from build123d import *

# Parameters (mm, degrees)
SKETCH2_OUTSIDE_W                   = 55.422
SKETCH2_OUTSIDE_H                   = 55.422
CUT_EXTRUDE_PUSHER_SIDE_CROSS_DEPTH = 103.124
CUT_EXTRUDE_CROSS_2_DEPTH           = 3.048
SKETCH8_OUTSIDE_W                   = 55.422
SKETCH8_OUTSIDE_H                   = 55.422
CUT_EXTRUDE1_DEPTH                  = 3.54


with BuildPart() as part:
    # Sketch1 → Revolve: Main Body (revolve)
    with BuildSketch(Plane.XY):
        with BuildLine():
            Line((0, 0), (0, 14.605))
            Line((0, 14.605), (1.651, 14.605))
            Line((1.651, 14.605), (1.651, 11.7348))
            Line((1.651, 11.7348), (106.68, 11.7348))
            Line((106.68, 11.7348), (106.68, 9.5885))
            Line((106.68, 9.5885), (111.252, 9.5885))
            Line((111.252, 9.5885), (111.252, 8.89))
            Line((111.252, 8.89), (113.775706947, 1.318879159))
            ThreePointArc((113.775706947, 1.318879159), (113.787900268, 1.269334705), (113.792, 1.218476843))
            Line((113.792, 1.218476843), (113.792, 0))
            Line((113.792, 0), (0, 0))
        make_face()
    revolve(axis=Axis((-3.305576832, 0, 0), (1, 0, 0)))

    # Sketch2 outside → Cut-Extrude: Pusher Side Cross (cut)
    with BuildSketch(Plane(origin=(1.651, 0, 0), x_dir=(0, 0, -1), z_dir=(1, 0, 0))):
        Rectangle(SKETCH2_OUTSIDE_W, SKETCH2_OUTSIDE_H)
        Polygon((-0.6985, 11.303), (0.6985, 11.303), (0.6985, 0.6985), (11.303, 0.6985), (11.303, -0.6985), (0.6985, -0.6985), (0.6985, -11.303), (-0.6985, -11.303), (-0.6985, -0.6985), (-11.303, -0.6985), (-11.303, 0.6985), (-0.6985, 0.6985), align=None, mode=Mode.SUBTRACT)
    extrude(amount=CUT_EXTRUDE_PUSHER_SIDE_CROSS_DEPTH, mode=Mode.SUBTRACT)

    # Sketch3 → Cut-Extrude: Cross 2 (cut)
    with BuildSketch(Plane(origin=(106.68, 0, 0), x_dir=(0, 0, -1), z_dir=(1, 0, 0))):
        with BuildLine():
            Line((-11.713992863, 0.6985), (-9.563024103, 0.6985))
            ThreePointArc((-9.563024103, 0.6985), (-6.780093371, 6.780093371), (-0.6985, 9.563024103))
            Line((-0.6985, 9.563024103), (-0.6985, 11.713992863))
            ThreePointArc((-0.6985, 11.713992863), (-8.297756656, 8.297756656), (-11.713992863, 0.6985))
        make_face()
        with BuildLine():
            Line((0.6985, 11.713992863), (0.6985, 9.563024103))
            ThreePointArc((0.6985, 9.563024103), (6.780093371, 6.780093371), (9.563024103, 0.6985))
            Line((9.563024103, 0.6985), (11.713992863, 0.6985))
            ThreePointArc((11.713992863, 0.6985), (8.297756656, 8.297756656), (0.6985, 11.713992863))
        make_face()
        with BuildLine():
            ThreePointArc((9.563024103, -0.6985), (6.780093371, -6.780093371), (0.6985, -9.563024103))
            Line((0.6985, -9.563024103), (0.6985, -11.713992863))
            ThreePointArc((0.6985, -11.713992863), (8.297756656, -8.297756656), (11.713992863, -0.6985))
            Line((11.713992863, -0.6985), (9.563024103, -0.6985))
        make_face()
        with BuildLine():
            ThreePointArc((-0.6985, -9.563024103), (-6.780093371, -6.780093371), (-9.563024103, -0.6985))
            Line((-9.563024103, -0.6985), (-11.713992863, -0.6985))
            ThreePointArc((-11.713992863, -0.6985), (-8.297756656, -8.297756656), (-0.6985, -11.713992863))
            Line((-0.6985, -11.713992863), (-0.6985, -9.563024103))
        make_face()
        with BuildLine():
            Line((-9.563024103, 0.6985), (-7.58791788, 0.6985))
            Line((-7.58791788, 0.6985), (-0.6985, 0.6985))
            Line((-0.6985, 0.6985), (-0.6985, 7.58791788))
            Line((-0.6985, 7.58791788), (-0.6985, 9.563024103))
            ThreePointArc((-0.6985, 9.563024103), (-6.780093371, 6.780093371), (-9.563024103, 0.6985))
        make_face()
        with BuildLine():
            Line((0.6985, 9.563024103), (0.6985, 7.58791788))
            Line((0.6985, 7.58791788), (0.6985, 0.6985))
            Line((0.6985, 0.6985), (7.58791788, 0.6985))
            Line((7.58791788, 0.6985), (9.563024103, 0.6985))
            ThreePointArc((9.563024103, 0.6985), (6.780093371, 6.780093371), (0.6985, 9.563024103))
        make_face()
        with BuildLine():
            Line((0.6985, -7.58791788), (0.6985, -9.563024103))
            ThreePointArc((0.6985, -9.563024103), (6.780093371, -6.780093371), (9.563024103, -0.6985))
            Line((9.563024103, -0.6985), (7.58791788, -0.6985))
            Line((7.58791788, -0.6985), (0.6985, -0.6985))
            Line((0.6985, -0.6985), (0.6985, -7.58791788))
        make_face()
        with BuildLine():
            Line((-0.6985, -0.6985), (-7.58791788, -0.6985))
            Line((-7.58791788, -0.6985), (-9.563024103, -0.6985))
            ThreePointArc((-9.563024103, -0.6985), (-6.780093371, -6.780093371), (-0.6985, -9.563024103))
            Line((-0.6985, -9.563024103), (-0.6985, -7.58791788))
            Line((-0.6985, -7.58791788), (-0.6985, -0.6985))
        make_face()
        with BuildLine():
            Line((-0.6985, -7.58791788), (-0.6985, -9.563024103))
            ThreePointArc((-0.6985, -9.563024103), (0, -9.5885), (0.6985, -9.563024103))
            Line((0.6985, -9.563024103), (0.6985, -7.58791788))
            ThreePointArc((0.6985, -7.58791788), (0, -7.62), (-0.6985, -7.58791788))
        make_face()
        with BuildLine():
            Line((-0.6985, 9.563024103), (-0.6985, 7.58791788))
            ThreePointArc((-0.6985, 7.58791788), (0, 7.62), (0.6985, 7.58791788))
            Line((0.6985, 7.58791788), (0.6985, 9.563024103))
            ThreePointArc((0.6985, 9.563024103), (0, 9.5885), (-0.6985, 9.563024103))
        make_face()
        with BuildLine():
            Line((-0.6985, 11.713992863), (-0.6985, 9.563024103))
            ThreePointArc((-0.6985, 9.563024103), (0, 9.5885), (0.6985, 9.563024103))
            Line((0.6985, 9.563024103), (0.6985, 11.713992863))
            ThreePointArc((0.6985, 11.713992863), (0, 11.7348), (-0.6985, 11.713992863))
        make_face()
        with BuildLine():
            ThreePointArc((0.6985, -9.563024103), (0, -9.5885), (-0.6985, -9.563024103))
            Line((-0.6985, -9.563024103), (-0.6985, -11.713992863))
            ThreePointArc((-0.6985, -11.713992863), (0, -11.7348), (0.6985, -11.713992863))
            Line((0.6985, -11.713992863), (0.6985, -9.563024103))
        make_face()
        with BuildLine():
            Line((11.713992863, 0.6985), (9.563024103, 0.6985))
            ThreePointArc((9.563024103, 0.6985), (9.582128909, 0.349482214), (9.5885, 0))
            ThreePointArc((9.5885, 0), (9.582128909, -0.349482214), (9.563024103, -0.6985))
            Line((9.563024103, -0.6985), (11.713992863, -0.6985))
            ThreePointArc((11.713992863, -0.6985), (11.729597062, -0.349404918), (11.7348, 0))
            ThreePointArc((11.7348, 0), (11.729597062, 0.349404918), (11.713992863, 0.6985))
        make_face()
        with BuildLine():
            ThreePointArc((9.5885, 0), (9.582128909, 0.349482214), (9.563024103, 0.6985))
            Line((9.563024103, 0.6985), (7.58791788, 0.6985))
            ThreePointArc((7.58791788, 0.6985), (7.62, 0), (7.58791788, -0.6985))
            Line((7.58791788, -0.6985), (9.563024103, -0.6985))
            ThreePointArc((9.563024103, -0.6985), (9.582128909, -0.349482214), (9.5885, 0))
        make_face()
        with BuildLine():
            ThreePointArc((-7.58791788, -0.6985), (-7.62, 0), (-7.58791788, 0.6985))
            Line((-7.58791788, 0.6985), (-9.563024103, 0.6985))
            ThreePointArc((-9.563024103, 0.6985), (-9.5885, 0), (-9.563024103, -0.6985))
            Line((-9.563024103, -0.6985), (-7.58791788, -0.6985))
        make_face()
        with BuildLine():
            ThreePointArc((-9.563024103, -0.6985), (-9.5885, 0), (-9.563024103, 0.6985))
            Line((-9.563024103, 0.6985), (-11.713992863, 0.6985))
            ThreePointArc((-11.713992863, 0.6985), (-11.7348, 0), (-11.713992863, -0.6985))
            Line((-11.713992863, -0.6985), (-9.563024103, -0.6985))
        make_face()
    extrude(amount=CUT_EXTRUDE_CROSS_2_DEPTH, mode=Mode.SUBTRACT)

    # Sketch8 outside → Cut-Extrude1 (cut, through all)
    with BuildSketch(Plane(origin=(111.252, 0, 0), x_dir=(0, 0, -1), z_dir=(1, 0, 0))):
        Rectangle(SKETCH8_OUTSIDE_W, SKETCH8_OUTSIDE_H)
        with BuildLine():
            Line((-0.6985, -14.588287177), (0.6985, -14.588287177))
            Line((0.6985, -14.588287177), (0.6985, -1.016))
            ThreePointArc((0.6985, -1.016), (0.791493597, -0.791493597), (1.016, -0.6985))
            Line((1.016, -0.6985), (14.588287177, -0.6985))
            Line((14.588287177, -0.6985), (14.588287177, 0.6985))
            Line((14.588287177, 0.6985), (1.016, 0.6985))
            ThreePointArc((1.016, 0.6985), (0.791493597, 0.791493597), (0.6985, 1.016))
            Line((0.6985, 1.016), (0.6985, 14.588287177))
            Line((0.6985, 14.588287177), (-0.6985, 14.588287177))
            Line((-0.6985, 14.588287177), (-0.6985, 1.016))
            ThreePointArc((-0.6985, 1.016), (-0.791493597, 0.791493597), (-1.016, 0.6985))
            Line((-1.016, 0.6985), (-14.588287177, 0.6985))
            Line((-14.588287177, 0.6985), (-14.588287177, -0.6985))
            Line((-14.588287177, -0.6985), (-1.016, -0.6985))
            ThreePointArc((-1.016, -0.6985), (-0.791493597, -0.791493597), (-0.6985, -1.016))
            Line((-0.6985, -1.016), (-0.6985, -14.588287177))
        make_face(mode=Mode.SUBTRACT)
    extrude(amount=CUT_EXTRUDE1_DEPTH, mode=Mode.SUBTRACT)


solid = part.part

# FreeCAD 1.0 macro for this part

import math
import FreeCAD as App
import Part
import Sketcher
Q = App.Units.Quantity


def add_polygon(sketch, points):
    """Adds a closed chain of lines whose ends are joined by coincident constraints."""
    first, n = sketch.GeometryCount, len(points)
    for a, b in zip(points, points[1:] + points[:1]):
        sketch.addGeometry(Part.LineSegment(App.Vector(*a, 0), App.Vector(*b, 0)), False)
    for i in range(n):
        sketch.addConstraint(Sketcher.Constraint("Coincident", first + i, 2, first + (i + 1) % n, 1))

doc = App.newDocument("Part")
body = doc.addObject("PartDesign::Body", "Body")

# Sketch on XY plane
sketch1 = doc.addObject("Sketcher::SketchObject", "Sketch")
body.addObject(sketch1)
sketch1.AttachmentSupport = (doc.XY_Plane, [""])
sketch1.MapMode = "FlatFace"
sketch1.addGeometry([
    Part.LineSegment(App.Vector(0, 14.61, 0), App.Vector(0, 0, 0)),  # 0
    Part.LineSegment(App.Vector(0, 0, 0), App.Vector(113.79, 0, 0)),  # 1
    Part.LineSegment(App.Vector(113.79, 0, 0), App.Vector(113.79, 1.22, 0)),  # 2
    Part.ArcOfCircle(Part.Circle(App.Vector(113.47, 1.22, 0), App.Vector(0, 0, 1), 0.32), math.radians(0), math.radians(18.43)),  # 3
    Part.LineSegment(App.Vector(113.78, 1.32, 0), App.Vector(111.25, 8.89, 0)),  # 4
    Part.LineSegment(App.Vector(111.25, 8.89, 0), App.Vector(111.25, 9.59, 0)),  # 5
    Part.LineSegment(App.Vector(111.25, 9.59, 0), App.Vector(106.68, 9.59, 0)),  # 6
    Part.LineSegment(App.Vector(106.68, 9.59, 0), App.Vector(106.68, 11.73, 0)),  # 7
    Part.LineSegment(App.Vector(106.68, 11.73, 0), App.Vector(1.65, 11.73, 0)),  # 8
    Part.LineSegment(App.Vector(1.65, 11.73, 0), App.Vector(1.65, 14.61, 0)),  # 9
    Part.LineSegment(App.Vector(1.65, 14.61, 0), App.Vector(0, 14.61, 0)),  # 10
], False)
sketch1.addConstraint([
    Sketcher.Constraint("Coincident", 0, 2, 1, 1),
    Sketcher.Constraint("Coincident", 1, 2, 2, 1),
    Sketcher.Constraint("Tangent", 2, 2, 3, 1),
    Sketcher.Constraint("Tangent", 3, 2, 4, 1),
    Sketcher.Constraint("Coincident", 4, 2, 5, 1),
    Sketcher.Constraint("Coincident", 5, 2, 6, 1),
    Sketcher.Constraint("Coincident", 6, 2, 7, 1),
    Sketcher.Constraint("Coincident", 7, 2, 8, 1),
    Sketcher.Constraint("Coincident", 8, 2, 9, 1),
    Sketcher.Constraint("Coincident", 9, 2, 10, 1),
    Sketcher.Constraint("Coincident", 10, 2, 0, 1),
    Sketcher.Constraint("Vertical", 0),
    Sketcher.Constraint("Horizontal", 1),
    Sketcher.Constraint("Vertical", 2),
    Sketcher.Constraint("Vertical", 5),
    Sketcher.Constraint("Horizontal", 6),
    Sketcher.Constraint("Vertical", 7),
    Sketcher.Constraint("Horizontal", 8),
    Sketcher.Constraint("Vertical", 9),
    Sketcher.Constraint("Horizontal", 10),
    Sketcher.Constraint("Coincident", 0, 2, -1, 1),
    Sketcher.Constraint("DistanceX", 1, 1, 1, 2, Q("4.48 in")),
    Sketcher.Constraint("DistanceX", 6, 2, 6, 1, Q("0.18 in")),
    Sketcher.Constraint("DistanceX", -1, 1, 6, 2, Q("4.2 in")),
    Sketcher.Constraint("Radius", 3, Q("0.0125 in")),
    Sketcher.Constraint("DistanceX", 8, 2, 8, 1, Q("4.135 in")),
    Sketcher.Constraint("DistanceY", 0, 2, 0, 1, Q("0.575 in")),
    Sketcher.Constraint("DistanceY", 9, 1, 9, 2, Q("0.113 in")),
    Sketcher.Constraint("DistanceY", -1, 1, 4, 2, Q("0.35 in")),
    Sketcher.Constraint("DistanceY", 5, 1, 5, 2, Q("0.0275 in")),
    Sketcher.Constraint("DistanceY", 2, 1, 2, 2, 1.218477),
])
revolution = doc.addObject("PartDesign::Revolution", "Revolution")
body.addObject(revolution)
revolution.Profile = sketch1
revolution.ReferenceAxis = (sketch1, ["H_Axis"])
revolution.Angle = 360

# Sketch on YZ plane
sketch2 = doc.addObject("Sketcher::SketchObject", "Sketch001")
body.addObject(sketch2)
sketch2.AttachmentSupport = (doc.YZ_Plane, [""])
sketch2.MapMode = "FlatFace"
sketch2.AttachmentOffset = App.Placement(App.Vector(0, 0, 0.065 * 25.4), App.Rotation())
add_polygon(sketch2, [(27.7, 27.7), (-27.7, 27.7), (-27.7, -27.7), (27.7, -27.7)])  # lines 0-3
add_polygon(sketch2, [(0.7, 0.7), (11.3, 0.7), (11.3, -0.7), (0.7, -0.7), (0.7, -11.3), (-0.7, -11.3), (-0.7, -0.7), (-11.3, -0.7), (-11.3, 0.7), (-0.7, 0.7), (-0.7, 11.3), (0.7, 11.3)])  # lines 4-15
sketch2.addConstraint([
    Sketcher.Constraint("Horizontal", 0),
    Sketcher.Constraint("Vertical", 1),
    Sketcher.Constraint("Horizontal", 2),
    Sketcher.Constraint("Vertical", 3),
    Sketcher.Constraint("Horizontal", 4),
    Sketcher.Constraint("Vertical", 5),
    Sketcher.Constraint("Horizontal", 6),
    Sketcher.Constraint("Vertical", 7),
    Sketcher.Constraint("Horizontal", 8),
    Sketcher.Constraint("Vertical", 9),
    Sketcher.Constraint("Horizontal", 10),
    Sketcher.Constraint("Vertical", 11),
    Sketcher.Constraint("Horizontal", 12),
    Sketcher.Constraint("Vertical", 13),
    Sketcher.Constraint("Horizontal", 14),
    Sketcher.Constraint("Vertical", 15),
    Sketcher.Constraint("Symmetric", 0, 2, 2, 2, -1, 1),
    Sketcher.Constraint("Symmetric", 4, 2, 10, 2, -1, 1),
    Sketcher.Constraint("Symmetric", 6, 2, 12, 2, -1, 1),
    Sketcher.Constraint("Symmetric", 8, 2, 14, 2, -1, 1),
    Sketcher.Constraint("Symmetric", 6, 2, 9, 2, -2),
    Sketcher.Constraint("Equal", 2, 1),
    Sketcher.Constraint("Equal", 14, 5),
    Sketcher.Constraint("Equal", 12, 7),
    Sketcher.Constraint("DistanceX", 8, 2, 8, 1, Q("0.055 in")),
    Sketcher.Constraint("DistanceX", 10, 2, 5, 2, Q("0.89 in")),
    Sketcher.Constraint("DistanceX", 0, 2, 0, 1, 55.422),
])
pocket1 = doc.addObject("PartDesign::Pocket", "Pocket")
body.addObject(pocket1)
pocket1.Profile = sketch2
pocket1.Length = Q("4.06 in")
pocket1.Reversed = True

# Sketch on YZ plane
sketch3 = doc.addObject("Sketcher::SketchObject", "Sketch002")
body.addObject(sketch3)
sketch3.AttachmentSupport = (doc.YZ_Plane, [""])
sketch3.MapMode = "FlatFace"
sketch3.AttachmentOffset = App.Placement(App.Vector(0, 0, 4.2 * 25.4), App.Rotation())
sketch3.addGeometry([
    Part.ArcOfCircle(Part.Circle(App.Vector(0, 0, 0), App.Vector(0, 0, 1), 11.7), math.radians(93), math.radians(177)),  # 0
    Part.ArcOfCircle(Part.Circle(App.Vector(0, 0, 0), App.Vector(0, 0, 1), 11.7), math.radians(176.59), math.radians(183.41)),  # 1
    Part.ArcOfCircle(Part.Circle(App.Vector(0, 0, 0), App.Vector(0, 0, 1), 11.7), math.radians(-177), math.radians(-93)),  # 2
    Part.ArcOfCircle(Part.Circle(App.Vector(0, 0, 0), App.Vector(0, 0, 1), 11.7), math.radians(-93.41), math.radians(-90)),  # 3
    Part.ArcOfCircle(Part.Circle(App.Vector(0, 0, 0), App.Vector(0, 0, 1), 11.7), math.radians(-90), math.radians(-86.59)),  # 4
    Part.ArcOfCircle(Part.Circle(App.Vector(0, 0, 0), App.Vector(0, 0, 1), 11.7), math.radians(-87), math.radians(-3)),  # 5
    Part.ArcOfCircle(Part.Circle(App.Vector(0, 0, 0), App.Vector(0, 0, 1), 11.7), math.radians(-3.41), math.radians(3.41)),  # 6
    Part.ArcOfCircle(Part.Circle(App.Vector(0, 0, 0), App.Vector(0, 0, 1), 11.7), math.radians(3), math.radians(87)),  # 7
    Part.ArcOfCircle(Part.Circle(App.Vector(0, 0, 0), App.Vector(0, 0, 1), 11.7), math.radians(86.59), math.radians(93.41)),  # 8
    Part.LineSegment(App.Vector(0.7, 7.6, 0), App.Vector(0.7, 0.7, 0)),  # 9
    Part.LineSegment(App.Vector(0.7, 0.7, 0), App.Vector(7.6, 0.7, 0)),  # 10
    Part.ArcOfCircle(Part.Circle(App.Vector(0, 0, 0), App.Vector(0, 0, 1), 7.6), math.radians(-5.26), math.radians(5.26)),  # 11
    Part.LineSegment(App.Vector(7.6, -0.7, 0), App.Vector(0.7, -0.7, 0)),  # 12
    Part.LineSegment(App.Vector(0.7, -0.7, 0), App.Vector(0.7, -7.6, 0)),  # 13
    Part.ArcOfCircle(Part.Circle(App.Vector(0, 0, 0), App.Vector(0, 0, 1), 7.6), math.radians(-95.26), math.radians(-84.74)),  # 14
    Part.LineSegment(App.Vector(-0.7, -7.6, 0), App.Vector(-0.7, -0.7, 0)),  # 15
    Part.LineSegment(App.Vector(-0.7, -0.7, 0), App.Vector(-7.6, -0.7, 0)),  # 16
    Part.ArcOfCircle(Part.Circle(App.Vector(0, 0, 0), App.Vector(0, 0, 1), 7.6), math.radians(174.74), math.radians(185.26)),  # 17
    Part.LineSegment(App.Vector(-7.6, 0.7, 0), App.Vector(-0.7, 0.7, 0)),  # 18
    Part.LineSegment(App.Vector(-0.7, 0.7, 0), App.Vector(-0.7, 7.6, 0)),  # 19
    Part.ArcOfCircle(Part.Circle(App.Vector(0, 0, 0), App.Vector(0, 0, 1), 7.6), math.radians(84.74), math.radians(95.26)),  # 20
], False)
sketch3.addConstraint([
    Sketcher.Constraint("Tangent", 0, 2, 1, 1),
    Sketcher.Constraint("Tangent", 1, 2, 2, 1),
    Sketcher.Constraint("Tangent", 2, 2, 3, 1),
    Sketcher.Constraint("Tangent", 3, 2, 4, 1),
    Sketcher.Constraint("Tangent", 4, 2, 5, 1),
    Sketcher.Constraint("Tangent", 5, 2, 6, 1),
    Sketcher.Constraint("Tangent", 6, 2, 7, 1),
    Sketcher.Constraint("Tangent", 7, 2, 8, 1),
    Sketcher.Constraint("Tangent", 8, 2, 0, 1),
    Sketcher.Constraint("Coincident", 9, 2, 10, 1),
    Sketcher.Constraint("Coincident", 10, 2, 11, 2),
    Sketcher.Constraint("Coincident", 11, 1, 12, 1),
    Sketcher.Constraint("Coincident", 12, 2, 13, 1),
    Sketcher.Constraint("Coincident", 13, 2, 14, 2),
    Sketcher.Constraint("Coincident", 14, 1, 15, 1),
    Sketcher.Constraint("Coincident", 15, 2, 16, 1),
    Sketcher.Constraint("Coincident", 16, 2, 17, 2),
    Sketcher.Constraint("Coincident", 17, 1, 18, 1),
    Sketcher.Constraint("Coincident", 18, 2, 19, 1),
    Sketcher.Constraint("Coincident", 19, 2, 20, 2),
    Sketcher.Constraint("Coincident", 20, 1, 9, 1),
    Sketcher.Constraint("Vertical", 9),
    Sketcher.Constraint("Horizontal", 10),
    Sketcher.Constraint("Horizontal", 12),
    Sketcher.Constraint("Vertical", 13),
    Sketcher.Constraint("Vertical", 15),
    Sketcher.Constraint("Horizontal", 16),
    Sketcher.Constraint("Horizontal", 18),
    Sketcher.Constraint("Vertical", 19),
    Sketcher.Constraint("Coincident", 0, 3, -1, 1),
    Sketcher.Constraint("Coincident", 2, 3, -1, 1),
    Sketcher.Constraint("Coincident", 4, 3, -1, 1),
    Sketcher.Constraint("Coincident", 6, 3, -1, 1),
    Sketcher.Constraint("Coincident", 11, 3, -1, 1),
    Sketcher.Constraint("Coincident", 14, 3, -1, 1),
    Sketcher.Constraint("Coincident", 17, 3, -1, 1),
    Sketcher.Constraint("Coincident", 20, 3, -1, 1),
    Sketcher.Constraint("Equal", 11, 14),
    Sketcher.Constraint("Equal", 14, 17),
    Sketcher.Constraint("Equal", 17, 20),
    Sketcher.Constraint("Symmetric", 9, 2, 15, 2, -1, 1),
    Sketcher.Constraint("Symmetric", 12, 2, 18, 2, -1, 1),
    Sketcher.Constraint("Symmetric", 12, 2, 15, 2, -2),
    Sketcher.Constraint("PointOnObject", 3, 2, -2),
    Sketcher.Constraint("Horizontal", 2, 2, 4, 2),
    Sketcher.Constraint("Horizontal", 1, 2, 5, 2),
    Sketcher.Constraint("Horizontal", 0, 2, 6, 2),
    Sketcher.Constraint("Horizontal", 7, 2, 8, 2),
    Sketcher.Constraint("Horizontal", 6, 2, 9, 2),
    Sketcher.Constraint("Horizontal", 5, 2, 11, 1),
    Sketcher.Constraint("Vertical", 4, 2, 7, 2),
    Sketcher.Constraint("Vertical", 7, 2, 9, 2),
    Sketcher.Constraint("Equal", 18, 9),
    Sketcher.Constraint("Radius", 11, Q("0.3 in")),
    Sketcher.Constraint("Radius", 0, Q("0.462 in")),
    Sketcher.Constraint("DistanceY", 1, 2, 0, 2, Q("0.055 in")),
])
pocket2 = doc.addObject("PartDesign::Pocket", "Pocket001")
body.addObject(pocket2)
pocket2.Profile = sketch3
pocket2.Length = Q("0.12 in")
pocket2.Reversed = True

# Sketch on YZ plane
sketch4 = doc.addObject("Sketcher::SketchObject", "Sketch003")
body.addObject(sketch4)
sketch4.AttachmentSupport = (doc.YZ_Plane, [""])
sketch4.MapMode = "FlatFace"
sketch4.AttachmentOffset = App.Placement(App.Vector(0, 0, 4.38 * 25.4), App.Rotation())
add_polygon(sketch4, [(27.71, 27.71), (-27.71, 27.71), (-27.71, -27.71), (27.71, -27.71)])  # lines 0-3
sketch4.addGeometry(Part.LineSegment(App.Vector(-14.59, -0.7, 0), App.Vector(-14.59, 0.7, 0)), False)  # 4
sketch4.addGeometry(Part.LineSegment(App.Vector(-14.59, 0.7, 0), App.Vector(-1.02, 0.7, 0)), False)  # 5
sketch4.addGeometry(Part.ArcOfCircle(Part.Circle(App.Vector(-1.02, 1.02, 0), App.Vector(0, 0, 1), 0.32), math.radians(-90), math.radians(0)), False)  # 6
sketch4.addGeometry(Part.LineSegment(App.Vector(-0.7, 1.02, 0), App.Vector(-0.7, 14.59, 0)), False)  # 7
sketch4.addGeometry(Part.LineSegment(App.Vector(-0.7, 14.59, 0), App.Vector(0.7, 14.59, 0)), False)  # 8
sketch4.addGeometry(Part.LineSegment(App.Vector(0.7, 14.59, 0), App.Vector(0.7, 1.02, 0)), False)  # 9
sketch4.addGeometry(Part.ArcOfCircle(Part.Circle(App.Vector(1.02, 1.02, 0), App.Vector(0, 0, 1), 0.32), math.radians(180), math.radians(270)), False)  # 10
sketch4.addGeometry(Part.LineSegment(App.Vector(1.02, 0.7, 0), App.Vector(14.59, 0.7, 0)), False)  # 11
sketch4.addGeometry(Part.LineSegment(App.Vector(14.59, 0.7, 0), App.Vector(14.59, -0.7, 0)), False)  # 12
sketch4.addGeometry(Part.LineSegment(App.Vector(14.59, -0.7, 0), App.Vector(1.02, -0.7, 0)), False)  # 13
sketch4.addGeometry(Part.ArcOfCircle(Part.Circle(App.Vector(1.02, -1.02, 0), App.Vector(0, 0, 1), 0.32), math.radians(90), math.radians(180)), False)  # 14
sketch4.addGeometry(Part.LineSegment(App.Vector(0.7, -1.02, 0), App.Vector(0.7, -14.59, 0)), False)  # 15
sketch4.addGeometry(Part.LineSegment(App.Vector(0.7, -14.59, 0), App.Vector(-0.7, -14.59, 0)), False)  # 16
sketch4.addGeometry(Part.LineSegment(App.Vector(-0.7, -14.59, 0), App.Vector(-0.7, -1.02, 0)), False)  # 17
sketch4.addGeometry(Part.ArcOfCircle(Part.Circle(App.Vector(-1.02, -1.02, 0), App.Vector(0, 0, 1), 0.32), math.radians(0), math.radians(90)), False)  # 18
sketch4.addGeometry(Part.LineSegment(App.Vector(-1.02, -0.7, 0), App.Vector(-14.59, -0.7, 0)), False)  # 19
sketch4.addConstraint([
    Sketcher.Constraint("Coincident", 4, 2, 5, 1),
    Sketcher.Constraint("Tangent", 5, 2, 6, 1),
    Sketcher.Constraint("Tangent", 6, 2, 7, 1),
    Sketcher.Constraint("Coincident", 7, 2, 8, 1),
    Sketcher.Constraint("Coincident", 8, 2, 9, 1),
    Sketcher.Constraint("Tangent", 9, 2, 10, 1),
    Sketcher.Constraint("Tangent", 10, 2, 11, 1),
    Sketcher.Constraint("Coincident", 11, 2, 12, 1),
    Sketcher.Constraint("Coincident", 12, 2, 13, 1),
    Sketcher.Constraint("Tangent", 13, 2, 14, 1),
    Sketcher.Constraint("Tangent", 14, 2, 15, 1),
    Sketcher.Constraint("Coincident", 15, 2, 16, 1),
    Sketcher.Constraint("Coincident", 16, 2, 17, 1),
    Sketcher.Constraint("Tangent", 17, 2, 18, 1),
    Sketcher.Constraint("Tangent", 18, 2, 19, 1),
    Sketcher.Constraint("Coincident", 19, 2, 4, 1),
    Sketcher.Constraint("Horizontal", 0),
    Sketcher.Constraint("Vertical", 1),
    Sketcher.Constraint("Horizontal", 2),
    Sketcher.Constraint("Vertical", 3),
    Sketcher.Constraint("Vertical", 4),
    Sketcher.Constraint("Horizontal", 5),
    Sketcher.Constraint("Vertical", 7),
    Sketcher.Constraint("Horizontal", 8),
    Sketcher.Constraint("Vertical", 9),
    Sketcher.Constraint("Horizontal", 11),
    Sketcher.Constraint("Vertical", 12),
    Sketcher.Constraint("Horizontal", 13),
    Sketcher.Constraint("Vertical", 15),
    Sketcher.Constraint("Horizontal", 16),
    Sketcher.Constraint("Vertical", 17),
    Sketcher.Constraint("Horizontal", 19),
    Sketcher.Constraint("Equal", 6, 10),
    Sketcher.Constraint("Equal", 10, 14),
    Sketcher.Constraint("Equal", 14, 18),
    Sketcher.Constraint("Symmetric", 6, 3, 14, 3, -1, 1),
    Sketcher.Constraint("Symmetric", 10, 3, 18, 3, -1, 1),
    Sketcher.Constraint("Symmetric", 0, 2, 2, 2, -1, 1),
    Sketcher.Constraint("Symmetric", 6, 3, 10, 3, -2),
    Sketcher.Constraint("Equal", 5, 11),
    Sketcher.Constraint("Equal", 2, 1),
    Sketcher.Constraint("Equal", 16, 4),
    Sketcher.Constraint("Equal", 19, 7),
    Sketcher.Constraint("Equal", 9, 15),
    Sketcher.Constraint("Radius", 6, Q("0.0125 in")),
    Sketcher.Constraint("DistanceX", 8, 1, 8, 2, Q("0.055 in")),
    Sketcher.Constraint("DistanceX", 0, 2, 0, 1, 55.422),
    Sketcher.Constraint("DistanceX", 5, 1, 5, 2, 13.572287),
])
pocket3 = doc.addObject("PartDesign::Pocket", "Pocket002")
body.addObject(pocket3)
pocket3.Profile = sketch4
pocket3.Type = "ThroughAll"
pocket3.Reversed = True

doc.recompute()
